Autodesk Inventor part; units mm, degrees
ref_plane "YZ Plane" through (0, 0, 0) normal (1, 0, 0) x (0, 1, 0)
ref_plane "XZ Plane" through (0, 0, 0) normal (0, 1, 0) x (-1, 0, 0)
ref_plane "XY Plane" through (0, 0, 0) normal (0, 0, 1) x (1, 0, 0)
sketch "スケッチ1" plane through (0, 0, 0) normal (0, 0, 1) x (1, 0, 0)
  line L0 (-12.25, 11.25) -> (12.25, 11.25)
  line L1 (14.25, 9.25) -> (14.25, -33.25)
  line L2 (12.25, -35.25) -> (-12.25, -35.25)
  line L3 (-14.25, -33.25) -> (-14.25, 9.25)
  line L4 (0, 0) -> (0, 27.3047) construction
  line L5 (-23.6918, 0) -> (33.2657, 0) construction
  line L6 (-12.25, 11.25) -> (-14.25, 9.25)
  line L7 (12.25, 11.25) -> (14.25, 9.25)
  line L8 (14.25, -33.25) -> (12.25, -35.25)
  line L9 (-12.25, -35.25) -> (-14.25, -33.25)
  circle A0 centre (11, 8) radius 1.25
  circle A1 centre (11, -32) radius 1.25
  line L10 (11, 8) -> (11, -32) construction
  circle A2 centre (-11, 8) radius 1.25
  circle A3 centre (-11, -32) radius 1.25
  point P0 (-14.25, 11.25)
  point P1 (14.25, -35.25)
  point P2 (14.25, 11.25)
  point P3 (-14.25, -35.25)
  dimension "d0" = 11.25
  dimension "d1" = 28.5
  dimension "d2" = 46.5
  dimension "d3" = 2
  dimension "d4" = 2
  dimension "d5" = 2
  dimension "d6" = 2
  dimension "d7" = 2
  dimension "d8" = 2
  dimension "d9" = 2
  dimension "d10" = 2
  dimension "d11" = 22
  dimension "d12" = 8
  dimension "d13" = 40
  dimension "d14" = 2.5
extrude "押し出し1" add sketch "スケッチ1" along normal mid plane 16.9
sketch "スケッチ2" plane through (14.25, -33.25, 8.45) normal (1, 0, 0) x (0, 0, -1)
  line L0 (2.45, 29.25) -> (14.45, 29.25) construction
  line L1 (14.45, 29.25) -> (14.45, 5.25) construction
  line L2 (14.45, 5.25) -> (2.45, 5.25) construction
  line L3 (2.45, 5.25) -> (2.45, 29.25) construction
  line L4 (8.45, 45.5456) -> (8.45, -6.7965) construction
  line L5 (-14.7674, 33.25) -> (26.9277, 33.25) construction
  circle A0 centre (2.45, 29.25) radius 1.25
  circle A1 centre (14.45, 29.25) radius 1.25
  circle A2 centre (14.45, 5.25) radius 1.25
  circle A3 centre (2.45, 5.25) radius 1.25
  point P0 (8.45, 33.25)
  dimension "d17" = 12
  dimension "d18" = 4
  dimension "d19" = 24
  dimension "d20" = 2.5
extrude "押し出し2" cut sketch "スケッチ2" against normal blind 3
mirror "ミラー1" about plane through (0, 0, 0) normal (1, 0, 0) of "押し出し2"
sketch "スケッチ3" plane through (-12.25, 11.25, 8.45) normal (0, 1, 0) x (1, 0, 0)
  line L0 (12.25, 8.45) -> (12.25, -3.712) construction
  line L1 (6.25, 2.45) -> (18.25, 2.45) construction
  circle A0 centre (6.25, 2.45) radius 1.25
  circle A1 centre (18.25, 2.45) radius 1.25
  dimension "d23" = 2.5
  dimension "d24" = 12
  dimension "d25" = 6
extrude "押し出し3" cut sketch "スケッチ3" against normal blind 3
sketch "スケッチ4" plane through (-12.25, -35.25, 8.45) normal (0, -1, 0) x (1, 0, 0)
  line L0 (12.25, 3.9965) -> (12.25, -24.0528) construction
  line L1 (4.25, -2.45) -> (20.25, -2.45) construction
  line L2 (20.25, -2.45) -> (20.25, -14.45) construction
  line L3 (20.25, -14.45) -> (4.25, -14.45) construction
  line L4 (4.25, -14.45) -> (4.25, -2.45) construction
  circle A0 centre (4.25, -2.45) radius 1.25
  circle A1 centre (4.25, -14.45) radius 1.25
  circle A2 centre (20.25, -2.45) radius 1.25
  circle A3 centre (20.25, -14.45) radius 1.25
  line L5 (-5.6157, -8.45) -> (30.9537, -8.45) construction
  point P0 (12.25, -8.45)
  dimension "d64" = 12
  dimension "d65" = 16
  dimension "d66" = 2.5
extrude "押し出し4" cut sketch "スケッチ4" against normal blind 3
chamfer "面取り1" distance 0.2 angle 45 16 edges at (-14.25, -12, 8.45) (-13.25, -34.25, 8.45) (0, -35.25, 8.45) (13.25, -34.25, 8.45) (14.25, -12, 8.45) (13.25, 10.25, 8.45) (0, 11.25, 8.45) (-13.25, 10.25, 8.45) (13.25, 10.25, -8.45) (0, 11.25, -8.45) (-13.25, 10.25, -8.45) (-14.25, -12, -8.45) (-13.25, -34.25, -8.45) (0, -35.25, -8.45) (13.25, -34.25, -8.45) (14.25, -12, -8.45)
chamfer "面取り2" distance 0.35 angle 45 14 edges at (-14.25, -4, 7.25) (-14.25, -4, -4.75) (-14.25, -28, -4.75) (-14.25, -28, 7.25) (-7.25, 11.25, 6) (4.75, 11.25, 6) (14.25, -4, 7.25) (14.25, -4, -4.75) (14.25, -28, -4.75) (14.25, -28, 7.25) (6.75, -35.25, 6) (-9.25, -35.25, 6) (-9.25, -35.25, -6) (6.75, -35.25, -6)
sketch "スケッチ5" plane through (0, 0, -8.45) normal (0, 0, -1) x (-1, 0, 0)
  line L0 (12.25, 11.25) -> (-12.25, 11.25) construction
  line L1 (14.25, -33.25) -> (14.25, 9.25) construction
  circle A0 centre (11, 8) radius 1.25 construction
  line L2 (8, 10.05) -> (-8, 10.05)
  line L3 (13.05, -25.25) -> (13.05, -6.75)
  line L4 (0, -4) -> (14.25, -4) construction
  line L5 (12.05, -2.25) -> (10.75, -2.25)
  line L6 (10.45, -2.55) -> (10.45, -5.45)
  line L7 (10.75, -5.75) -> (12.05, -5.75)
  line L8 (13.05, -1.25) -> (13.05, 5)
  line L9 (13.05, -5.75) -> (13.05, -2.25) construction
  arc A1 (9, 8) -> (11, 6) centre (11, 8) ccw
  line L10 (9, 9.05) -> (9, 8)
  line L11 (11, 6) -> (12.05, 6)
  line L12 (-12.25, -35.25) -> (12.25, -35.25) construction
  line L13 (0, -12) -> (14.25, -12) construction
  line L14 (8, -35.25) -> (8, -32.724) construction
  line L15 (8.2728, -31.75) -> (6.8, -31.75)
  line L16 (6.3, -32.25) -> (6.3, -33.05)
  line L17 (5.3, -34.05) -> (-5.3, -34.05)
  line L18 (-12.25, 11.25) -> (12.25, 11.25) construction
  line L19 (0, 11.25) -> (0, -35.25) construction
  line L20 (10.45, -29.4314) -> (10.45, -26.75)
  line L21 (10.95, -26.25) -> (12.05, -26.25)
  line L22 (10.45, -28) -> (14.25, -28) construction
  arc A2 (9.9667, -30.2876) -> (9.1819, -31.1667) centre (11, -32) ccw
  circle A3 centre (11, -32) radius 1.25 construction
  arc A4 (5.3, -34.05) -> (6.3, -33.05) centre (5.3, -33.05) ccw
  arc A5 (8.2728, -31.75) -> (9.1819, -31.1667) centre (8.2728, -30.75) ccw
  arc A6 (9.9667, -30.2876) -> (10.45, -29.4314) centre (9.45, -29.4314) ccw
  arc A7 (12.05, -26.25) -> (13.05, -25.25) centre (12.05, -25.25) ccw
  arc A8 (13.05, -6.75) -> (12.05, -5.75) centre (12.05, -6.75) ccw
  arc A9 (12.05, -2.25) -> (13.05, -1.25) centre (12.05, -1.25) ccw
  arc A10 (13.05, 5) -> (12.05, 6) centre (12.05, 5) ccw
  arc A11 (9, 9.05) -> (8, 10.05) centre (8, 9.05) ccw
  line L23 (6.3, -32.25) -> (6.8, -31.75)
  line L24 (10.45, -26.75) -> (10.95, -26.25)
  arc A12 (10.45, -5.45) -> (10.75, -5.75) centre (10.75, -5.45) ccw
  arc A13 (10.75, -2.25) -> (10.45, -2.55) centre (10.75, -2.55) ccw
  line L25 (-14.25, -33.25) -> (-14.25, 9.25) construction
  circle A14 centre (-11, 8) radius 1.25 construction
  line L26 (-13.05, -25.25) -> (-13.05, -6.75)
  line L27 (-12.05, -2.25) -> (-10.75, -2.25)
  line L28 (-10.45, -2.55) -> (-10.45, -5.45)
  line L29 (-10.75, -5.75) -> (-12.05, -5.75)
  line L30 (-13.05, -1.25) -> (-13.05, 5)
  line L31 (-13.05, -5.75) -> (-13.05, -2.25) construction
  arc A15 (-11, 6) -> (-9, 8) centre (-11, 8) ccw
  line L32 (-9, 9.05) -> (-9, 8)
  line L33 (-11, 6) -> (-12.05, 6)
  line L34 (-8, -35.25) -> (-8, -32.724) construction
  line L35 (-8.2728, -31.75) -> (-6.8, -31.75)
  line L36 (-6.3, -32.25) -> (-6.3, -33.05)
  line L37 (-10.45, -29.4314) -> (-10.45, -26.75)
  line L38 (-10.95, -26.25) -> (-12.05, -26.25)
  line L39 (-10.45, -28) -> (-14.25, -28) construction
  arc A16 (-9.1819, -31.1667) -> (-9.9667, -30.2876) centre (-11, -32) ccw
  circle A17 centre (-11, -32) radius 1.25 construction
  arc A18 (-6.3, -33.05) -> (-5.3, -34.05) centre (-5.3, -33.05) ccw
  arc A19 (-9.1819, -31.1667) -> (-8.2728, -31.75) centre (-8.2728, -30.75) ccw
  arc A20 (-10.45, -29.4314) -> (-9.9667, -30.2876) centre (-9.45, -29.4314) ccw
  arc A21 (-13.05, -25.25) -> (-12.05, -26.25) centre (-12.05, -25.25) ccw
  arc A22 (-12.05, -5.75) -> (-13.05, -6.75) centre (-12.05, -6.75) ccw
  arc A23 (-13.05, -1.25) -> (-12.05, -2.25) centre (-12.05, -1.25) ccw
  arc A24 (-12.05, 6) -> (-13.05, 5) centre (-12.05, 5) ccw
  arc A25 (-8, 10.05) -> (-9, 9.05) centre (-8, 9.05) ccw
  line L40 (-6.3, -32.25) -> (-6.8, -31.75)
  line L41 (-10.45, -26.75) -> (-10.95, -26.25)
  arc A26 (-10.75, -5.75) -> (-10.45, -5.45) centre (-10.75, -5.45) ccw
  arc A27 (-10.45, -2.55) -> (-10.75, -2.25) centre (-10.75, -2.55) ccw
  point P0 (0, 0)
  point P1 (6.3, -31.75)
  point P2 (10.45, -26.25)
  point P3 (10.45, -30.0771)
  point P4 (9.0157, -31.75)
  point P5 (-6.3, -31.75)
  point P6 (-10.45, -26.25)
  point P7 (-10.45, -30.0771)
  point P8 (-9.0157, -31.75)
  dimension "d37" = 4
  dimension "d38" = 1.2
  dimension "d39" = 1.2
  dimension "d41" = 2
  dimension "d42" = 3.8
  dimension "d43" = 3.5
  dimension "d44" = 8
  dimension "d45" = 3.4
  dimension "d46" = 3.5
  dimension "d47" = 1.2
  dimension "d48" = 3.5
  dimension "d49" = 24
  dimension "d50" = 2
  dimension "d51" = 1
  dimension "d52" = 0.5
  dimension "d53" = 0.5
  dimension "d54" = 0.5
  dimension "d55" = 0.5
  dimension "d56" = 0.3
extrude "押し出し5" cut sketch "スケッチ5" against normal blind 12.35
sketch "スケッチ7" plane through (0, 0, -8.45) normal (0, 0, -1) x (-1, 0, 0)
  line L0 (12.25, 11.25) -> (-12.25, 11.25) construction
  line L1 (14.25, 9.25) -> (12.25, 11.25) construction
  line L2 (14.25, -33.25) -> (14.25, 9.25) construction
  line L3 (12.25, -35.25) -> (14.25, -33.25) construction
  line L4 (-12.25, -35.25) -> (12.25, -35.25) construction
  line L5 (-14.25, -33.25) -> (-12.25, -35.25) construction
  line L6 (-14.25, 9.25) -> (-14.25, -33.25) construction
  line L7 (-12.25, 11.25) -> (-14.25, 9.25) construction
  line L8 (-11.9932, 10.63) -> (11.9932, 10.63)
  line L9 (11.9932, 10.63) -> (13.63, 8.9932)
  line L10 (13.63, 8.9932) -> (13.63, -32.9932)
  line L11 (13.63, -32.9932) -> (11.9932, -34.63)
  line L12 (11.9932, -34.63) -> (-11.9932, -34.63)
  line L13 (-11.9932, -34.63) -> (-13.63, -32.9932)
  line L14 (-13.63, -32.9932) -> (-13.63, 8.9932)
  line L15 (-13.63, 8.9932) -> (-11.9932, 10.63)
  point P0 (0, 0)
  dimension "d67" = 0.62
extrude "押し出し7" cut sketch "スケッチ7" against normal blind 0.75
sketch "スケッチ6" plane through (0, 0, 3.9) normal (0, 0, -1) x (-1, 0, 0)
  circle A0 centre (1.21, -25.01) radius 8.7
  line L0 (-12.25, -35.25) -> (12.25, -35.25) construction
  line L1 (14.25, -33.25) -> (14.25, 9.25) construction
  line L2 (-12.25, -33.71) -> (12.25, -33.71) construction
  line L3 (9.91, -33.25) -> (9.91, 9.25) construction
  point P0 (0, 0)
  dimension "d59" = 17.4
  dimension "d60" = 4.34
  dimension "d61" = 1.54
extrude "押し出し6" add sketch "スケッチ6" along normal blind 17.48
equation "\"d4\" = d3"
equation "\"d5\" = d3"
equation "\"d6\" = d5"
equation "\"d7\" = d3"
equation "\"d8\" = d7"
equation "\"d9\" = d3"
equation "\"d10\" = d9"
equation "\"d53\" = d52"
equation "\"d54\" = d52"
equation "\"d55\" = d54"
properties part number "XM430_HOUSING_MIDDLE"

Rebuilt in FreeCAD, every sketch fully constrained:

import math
import FreeCAD as App
import Part
import Sketcher
from FreeCAD import Vector
Q = App.Units.Quantity


def edges_at(feature, points):
    """Names of the edges that pass closest to the given points."""
    edges = feature.Shape.Edges
    near = lambda p: min(range(len(edges)), key=lambda i: edges[i].distToShape(Part.Vertex(*p))[0])
    return sorted({f"Edge{near(p) + 1}" for p in points})

doc = App.newDocument("Part")
params = doc.addObject("Spreadsheet::Sheet", "Params")
for row, (alias, value) in enumerate([
    ("sketch1_diameter", "2.5 mm"),
    ("sketch1_height", "42.5 mm"),
    ("pad1_length", "16.9 mm"),
    ("sketch2_diameter", "2.5 mm"),
    ("pocket1_length", "3 mm"),
    ("sketch3_diameter", "2.5 mm"),
    ("pocket2_length", "3 mm"),
    ("sketch4_diameter", "2.5 mm"),
    ("pocket3_length", "3 mm"),
    ("chamfer_size", "0.2 mm"),
    ("chamfer2_size", "0.35 mm"),
    ("sketch5_radius", "1 mm"),
    ("sketch5_radius2", "2 mm"),
    ("sketch5_radius3", "0.3 mm"),
    ("sketch5_width", "1.3 mm"),
    ("sketch5_width2", "1.1 mm"),
    ("pocket4_length", "12.35 mm"),
    ("pocket5_length", "0.75 mm"),
    ("sketch7_diameter", "17.4 mm"),
    ("pad2_length", "17.48 mm"),
], start=1):
    params.set(f"A{row}", alias)
    params.set(f"B{row}", "=" + value)
    params.setAlias(f"B{row}", alias)

body = doc.addObject("PartDesign::Body", "Body")

# Sketch on XY plane
sketch1 = body.newObject("Sketcher::SketchObject", "Sketch")
sketch1.AttachmentSupport = (doc.getObject("XY_Plane"), [""])
sketch1.MapMode = "FlatFace"
sketch1.addGeometry(Part.LineSegment(Vector(12.2, 11.2, 0), Vector(-12.2, 11.2, 0)), False)
sketch1.addGeometry(Part.LineSegment(Vector(-12.2, 11.2, 0), Vector(-14.2, 9.2, 0)), False)
sketch1.addGeometry(Part.LineSegment(Vector(-14.2, 9.2, 0), Vector(-14.2, -33.2, 0)), False)
sketch1.addGeometry(Part.LineSegment(Vector(-14.2, -33.2, 0), Vector(-12.2, -35.2, 0)), False)
sketch1.addGeometry(Part.LineSegment(Vector(-12.2, -35.2, 0), Vector(12.2, -35.2, 0)), False)
sketch1.addGeometry(Part.LineSegment(Vector(12.2, -35.2, 0), Vector(14.2, -33.2, 0)), False)
sketch1.addGeometry(Part.LineSegment(Vector(14.2, -33.2, 0), Vector(14.2, 9.2, 0)), False)
sketch1.addGeometry(Part.LineSegment(Vector(14.2, 9.2, 0), Vector(12.2, 11.2, 0)), False)
sketch1.addGeometry(Part.Circle(Vector(-11, -32, 0), Vector(0, 0, 1), 1.2), False)
sketch1.addGeometry(Part.Circle(Vector(11, -32, 0), Vector(0, 0, 1), 1.2), False)
sketch1.addGeometry(Part.Circle(Vector(-11, 8, 0), Vector(0, 0, 1), 1.2), False)
sketch1.addGeometry(Part.Circle(Vector(11, 8, 0), Vector(0, 0, 1), 1.2), False)
sketch1.addConstraint(Sketcher.Constraint("Coincident", 0, 2, 1, 1))
sketch1.addConstraint(Sketcher.Constraint("Coincident", 1, 2, 2, 1))
sketch1.addConstraint(Sketcher.Constraint("Coincident", 2, 2, 3, 1))
sketch1.addConstraint(Sketcher.Constraint("Coincident", 3, 2, 4, 1))
sketch1.addConstraint(Sketcher.Constraint("Coincident", 4, 2, 5, 1))
sketch1.addConstraint(Sketcher.Constraint("Coincident", 5, 2, 6, 1))
sketch1.addConstraint(Sketcher.Constraint("Coincident", 6, 2, 7, 1))
sketch1.addConstraint(Sketcher.Constraint("Coincident", 7, 2, 0, 1))
sketch1.addConstraint(Sketcher.Constraint("Horizontal", 0))
sketch1.addConstraint(Sketcher.Constraint("Vertical", 2))
sketch1.addConstraint(Sketcher.Constraint("Horizontal", 4))
sketch1.addConstraint(Sketcher.Constraint("Vertical", 6))
sketch1.addConstraint(Sketcher.Constraint("Equal", 8, 9))
sketch1.addConstraint(Sketcher.Constraint("Equal", 9, 10))
sketch1.addConstraint(Sketcher.Constraint("Equal", 10, 11))
sketch1.addConstraint(Sketcher.Constraint("Symmetric", 8, 3, 9, 3, -2))
sketch1.addConstraint(Sketcher.Constraint("Symmetric", 10, 3, 11, 3, -2))
sketch1.addConstraint(Sketcher.Constraint("Symmetric", 2, 2, 5, 2, -2))
sketch1.addConstraint(Sketcher.Constraint("Perpendicular", 1, 3))
sketch1.addConstraint(Sketcher.Constraint("Perpendicular", 3, 5))
sketch1.addConstraint(Sketcher.Constraint("Perpendicular", 5, 7))
sketch1.addConstraint(Sketcher.Constraint("Horizontal", 1, 2, 6, 2))
sketch1.addConstraint(Sketcher.Constraint("Vertical", 8, 3, 10, 3))
sketch1.addConstraint(Sketcher.Constraint("Vertical", 0, 2, 3, 2))
sketch1.addConstraint(Sketcher.Constraint("Vertical", 4, 2, 7, 2))
sketch1.addConstraint(Sketcher.Constraint("Diameter", 8, Q("2.5 mm")))
sketch1.addConstraint(Sketcher.Constraint("DistanceY", -1, 1, 10, 3, Q("8 mm")))
sketch1.addConstraint(Sketcher.Constraint("DistanceX", 8, 3, 9, 3, Q("22 mm")))
sketch1.addConstraint(Sketcher.Constraint("DistanceY", 8, 3, 10, 3, Q("40 mm")))
sketch1.addConstraint(Sketcher.Constraint("DistanceX", 1, 2, 0, 2, Q("2 mm")))
sketch1.addConstraint(Sketcher.Constraint("DistanceX", 2, 2, 5, 2, Q("28.5 mm")))
sketch1.addConstraint(Sketcher.Constraint("DistanceY", -1, 1, 0, 2, Q("11.25 mm")))
sketch1.addConstraint(Sketcher.Constraint("DistanceY", 2, 2, 2, 1, Q("42.5 mm")))
sketch1.setExpression("Constraints[25]", "Params.sketch1_diameter")
sketch1.setExpression("Constraints[32]", "Params.sketch1_height")
pad1 = body.newObject("PartDesign::Pad", "Pad")
pad1.Profile = sketch1
pad1.setExpression("Length", "Params.pad1_length")
pad1.Midplane = True

# Sketch on YZ plane
sketch2 = body.newObject("Sketcher::SketchObject", "Sketch001")
sketch2.AttachmentSupport = (doc.getObject("YZ_Plane"), [""])
sketch2.MapMode = "FlatFace"
sketch2.AttachmentOffset = App.Placement(Vector(0, 0, 14.25), App.Rotation())
sketch2.addGeometry(Part.Circle(Vector(-4, 6, 0), Vector(0, 0, 1), 1.2), False)
sketch2.addGeometry(Part.Circle(Vector(-4, -6, 0), Vector(0, 0, 1), 1.2), False)
sketch2.addGeometry(Part.Circle(Vector(-28, -6, 0), Vector(0, 0, 1), 1.2), False)
sketch2.addGeometry(Part.Circle(Vector(-28, 6, 0), Vector(0, 0, 1), 1.2), False)
sketch2.addConstraint(Sketcher.Constraint("Equal", 0, 1))
sketch2.addConstraint(Sketcher.Constraint("Equal", 1, 2))
sketch2.addConstraint(Sketcher.Constraint("Equal", 2, 3))
sketch2.addConstraint(Sketcher.Constraint("Symmetric", 0, 3, 1, 3, -1))
sketch2.addConstraint(Sketcher.Constraint("Symmetric", 2, 3, 3, 3, -1))
sketch2.addConstraint(Sketcher.Constraint("Horizontal", 1, 3, 2, 3))
sketch2.addConstraint(Sketcher.Constraint("Diameter", 0, Q("2.5 mm")))
sketch2.addConstraint(Sketcher.Constraint("DistanceX", 0, 3, -1, 1, Q("4 mm")))
sketch2.addConstraint(Sketcher.Constraint("DistanceY", 1, 3, 0, 3, Q("12 mm")))
sketch2.addConstraint(Sketcher.Constraint("DistanceX", 2, 3, 1, 3, Q("24 mm")))
sketch2.setExpression("Constraints[6]", "Params.sketch2_diameter")
pocket1 = body.newObject("PartDesign::Pocket", "Pocket")
pocket1.Profile = sketch2
pocket1.setExpression("Length", "Params.pocket1_length")
doc.recompute()

mirrored = body.newObject("PartDesign::Mirrored", "Mirrored")
mirrored.Originals = [pocket1]
mirrored.MirrorPlane = (doc.getObject("YZ_Plane"), [""])
body.Tip = mirrored

# Sketch on XZ plane
sketch3 = body.newObject("Sketcher::SketchObject", "Sketch002")
sketch3.AttachmentSupport = (doc.getObject("XZ_Plane"), [""])
sketch3.MapMode = "FlatFace"
sketch3.AttachmentOffset = App.Placement(Vector(0, 0, -11.25), App.Rotation())
sketch3.addGeometry(Part.Circle(Vector(-6, 6, 0), Vector(0, 0, 1), 1.2), False)
sketch3.addGeometry(Part.Circle(Vector(6, 6, 0), Vector(0, 0, 1), 1.2), False)
sketch3.addConstraint(Sketcher.Constraint("Equal", 0, 1))
sketch3.addConstraint(Sketcher.Constraint("Symmetric", 0, 3, 1, 3, -2))
sketch3.addConstraint(Sketcher.Constraint("Diameter", 0, Q("2.5 mm")))
sketch3.addConstraint(Sketcher.Constraint("DistanceX", 0, 3, -1, 1, Q("6 mm")))
sketch3.addConstraint(Sketcher.Constraint("DistanceY", -1, 1, 0, 3, Q("6 mm")))
sketch3.setExpression("Constraints[2]", "Params.sketch3_diameter")
pocket2 = body.newObject("PartDesign::Pocket", "Pocket001")
pocket2.Profile = sketch3
pocket2.setExpression("Length", "Params.pocket2_length")
pocket2.Reversed = True

# Sketch on XZ plane
sketch4 = body.newObject("Sketcher::SketchObject", "Sketch003")
sketch4.AttachmentSupport = (doc.getObject("XZ_Plane"), [""])
sketch4.MapMode = "FlatFace"
sketch4.AttachmentOffset = App.Placement(Vector(0, 0, 35.25), App.Rotation())
sketch4.addGeometry(Part.Circle(Vector(-8, 6, 0), Vector(0, 0, 1), 1.2), False)
sketch4.addGeometry(Part.Circle(Vector(-8, -6, 0), Vector(0, 0, 1), 1.2), False)
sketch4.addGeometry(Part.Circle(Vector(8, 6, 0), Vector(0, 0, 1), 1.2), False)
sketch4.addGeometry(Part.Circle(Vector(8, -6, 0), Vector(0, 0, 1), 1.2), False)
sketch4.addConstraint(Sketcher.Constraint("Equal", 0, 1))
sketch4.addConstraint(Sketcher.Constraint("Equal", 1, 2))
sketch4.addConstraint(Sketcher.Constraint("Equal", 2, 3))
sketch4.addConstraint(Sketcher.Constraint("Symmetric", 1, 3, 2, 3, -1, 1))
sketch4.addConstraint(Sketcher.Constraint("Symmetric", 0, 3, 3, 3, -1, 1))
sketch4.addConstraint(Sketcher.Constraint("Symmetric", 0, 3, 2, 3, -2))
sketch4.addConstraint(Sketcher.Constraint("Diameter", 0, Q("2.5 mm")))
sketch4.addConstraint(Sketcher.Constraint("DistanceY", 1, 3, 0, 3, Q("12 mm")))
sketch4.addConstraint(Sketcher.Constraint("DistanceX", 0, 3, 2, 3, Q("16 mm")))
sketch4.setExpression("Constraints[6]", "Params.sketch4_diameter")
pocket3 = body.newObject("PartDesign::Pocket", "Pocket002")
pocket3.Profile = sketch4
pocket3.setExpression("Length", "Params.pocket3_length")
doc.recompute()

chamfer = body.newObject("PartDesign::Chamfer", "Chamfer")
chamfer.Base = (pocket3, edges_at(pocket3, [
    (-14.25, -12, 8.45),
    (-13.25, -34.25, 8.45),
    (0, -35.25, 8.45),
    (13.25, -34.25, 8.45),
    (14.25, -12, 8.45),
    (13.25, 10.25, 8.45),
    (0, 11.25, 8.45),
    (-13.25, 10.25, 8.45),
    (13.25, 10.25, -8.45),
    (0, 11.25, -8.45),
    (-13.25, 10.25, -8.45),
    (-14.25, -12, -8.45),
    (-13.25, -34.25, -8.45),
    (0, -35.25, -8.45),
    (13.25, -34.25, -8.45),
    (14.25, -12, -8.45),
]))
chamfer.setExpression("Size", "Params.chamfer_size")
doc.recompute()

chamfer2 = body.newObject("PartDesign::Chamfer", "Chamfer001")
chamfer2.Base = (chamfer, edges_at(chamfer, [
    (-14.25, -4, 7.25),
    (-14.25, -4, -4.75),
    (-14.25, -28, -4.75),
    (-14.25, -28, 7.25),
    (-7.25, 11.25, 6),
    (4.75, 11.25, 6),
    (14.25, -4, 7.25),
    (14.25, -4, -4.75),
    (14.25, -28, -4.75),
    (14.25, -28, 7.25),
    (6.75, -35.25, 6),
    (-9.25, -35.25, 6),
    (-9.25, -35.25, -6),
    (6.75, -35.25, -6),
]))
chamfer2.setExpression("Size", "Params.chamfer2_size")

# Sketch on XY plane
sketch5 = body.newObject("Sketcher::SketchObject", "Sketch004")
sketch5.AttachmentSupport = (doc.getObject("XY_Plane"), [""])
sketch5.MapMode = "FlatFace"
sketch5.AttachmentOffset = App.Placement(Vector(0, 0, -8.45), App.Rotation())
sketch5.addGeometry(Part.ArcOfCircle(Part.Circle(Vector(-8, 9.05, 0), Vector(0, 0, 1), 1), math.radians(90), math.radians(180)), False)
sketch5.addGeometry(Part.LineSegment(Vector(-8, 10.05, 0), Vector(8, 10.05, 0)), False)
sketch5.addGeometry(Part.ArcOfCircle(Part.Circle(Vector(8, 9.05, 0), Vector(0, 0, 1), 1), math.radians(0), math.radians(90)), False)
sketch5.addGeometry(Part.LineSegment(Vector(9, 9.05, 0), Vector(9, 8, 0)), False)
sketch5.addGeometry(Part.ArcOfCircle(Part.Circle(Vector(11, 8, 0), Vector(0, 0, 1), 2), math.radians(180), math.radians(270)), False)
sketch5.addGeometry(Part.LineSegment(Vector(11, 6, 0), Vector(12.05, 6, 0)), False)
sketch5.addGeometry(Part.ArcOfCircle(Part.Circle(Vector(12.05, 5, 0), Vector(0, 0, 1), 1), math.radians(0), math.radians(90)), False)
sketch5.addGeometry(Part.LineSegment(Vector(13.05, 5, 0), Vector(13.05, -1.25, 0)), False)
sketch5.addGeometry(Part.ArcOfCircle(Part.Circle(Vector(12.05, -1.25, 0), Vector(0, 0, 1), 1), math.radians(-90), math.radians(0)), False)
sketch5.addGeometry(Part.LineSegment(Vector(12.05, -2.25, 0), Vector(10.75, -2.25, 0)), False)
sketch5.addGeometry(Part.ArcOfCircle(Part.Circle(Vector(10.75, -2.55, 0), Vector(0, 0, 1), 0.3), math.radians(90), math.radians(180)), False)
sketch5.addGeometry(Part.LineSegment(Vector(10.45, -2.55, 0), Vector(10.45, -5.45, 0)), False)
sketch5.addGeometry(Part.ArcOfCircle(Part.Circle(Vector(10.75, -5.45, 0), Vector(0, 0, 1), 0.3), math.radians(180), math.radians(270)), False)
sketch5.addGeometry(Part.LineSegment(Vector(10.75, -5.75, 0), Vector(12.05, -5.75, 0)), False)
sketch5.addGeometry(Part.ArcOfCircle(Part.Circle(Vector(12.05, -6.75, 0), Vector(0, 0, 1), 1), math.radians(0), math.radians(90)), False)
sketch5.addGeometry(Part.LineSegment(Vector(13.05, -6.75, 0), Vector(13.05, -25.25, 0)), False)
sketch5.addGeometry(Part.ArcOfCircle(Part.Circle(Vector(12.05, -25.25, 0), Vector(0, 0, 1), 1), math.radians(-90), math.radians(0)), False)
sketch5.addGeometry(Part.LineSegment(Vector(12.05, -26.25, 0), Vector(10.95, -26.25, 0)), False)
sketch5.addGeometry(Part.LineSegment(Vector(10.95, -26.25, 0), Vector(10.45, -26.75, 0)), False)
sketch5.addGeometry(Part.LineSegment(Vector(10.45, -26.75, 0), Vector(10.45, -29.43, 0)), False)
sketch5.addGeometry(Part.ArcOfCircle(Part.Circle(Vector(9.45, -29.43, 0), Vector(0, 0, 1), 1), math.radians(-59), math.radians(0)), False)
sketch5.addGeometry(Part.ArcOfCircle(Part.Circle(Vector(11, -32, 0), Vector(0, 0, 1), 2), math.radians(121), math.radians(155)), False)
sketch5.addGeometry(Part.ArcOfCircle(Part.Circle(Vector(8.27, -30.75, 0), Vector(0, 0, 1), 1), math.radians(-90), math.radians(-25)), False)
sketch5.addGeometry(Part.LineSegment(Vector(8.27, -31.75, 0), Vector(6.8, -31.75, 0)), False)
sketch5.addGeometry(Part.LineSegment(Vector(6.8, -31.75, 0), Vector(6.3, -32.25, 0)), False)
sketch5.addGeometry(Part.LineSegment(Vector(6.3, -32.25, 0), Vector(6.3, -33.05, 0)), False)
sketch5.addGeometry(Part.ArcOfCircle(Part.Circle(Vector(5.3, -33.05, 0), Vector(0, 0, 1), 1), math.radians(-90), math.radians(0)), False)
sketch5.addGeometry(Part.LineSegment(Vector(5.3, -34.05, 0), Vector(-5.3, -34.05, 0)), False)
sketch5.addGeometry(Part.ArcOfCircle(Part.Circle(Vector(-5.3, -33.05, 0), Vector(0, 0, 1), 1), math.radians(180), math.radians(270)), False)
sketch5.addGeometry(Part.LineSegment(Vector(-6.3, -33.05, 0), Vector(-6.3, -32.25, 0)), False)
sketch5.addGeometry(Part.LineSegment(Vector(-6.3, -32.25, 0), Vector(-6.8, -31.75, 0)), False)
sketch5.addGeometry(Part.LineSegment(Vector(-6.8, -31.75, 0), Vector(-8.27, -31.75, 0)), False)
sketch5.addGeometry(Part.ArcOfCircle(Part.Circle(Vector(-8.27, -30.75, 0), Vector(0, 0, 1), 1), math.radians(-155), math.radians(-90)), False)
sketch5.addGeometry(Part.ArcOfCircle(Part.Circle(Vector(-11, -32, 0), Vector(0, 0, 1), 2), math.radians(25), math.radians(59)), False)
sketch5.addGeometry(Part.ArcOfCircle(Part.Circle(Vector(-9.45, -29.43, 0), Vector(0, 0, 1), 1), math.radians(180), math.radians(239)), False)
sketch5.addGeometry(Part.LineSegment(Vector(-10.45, -29.43, 0), Vector(-10.45, -26.75, 0)), False)
sketch5.addGeometry(Part.LineSegment(Vector(-10.45, -26.75, 0), Vector(-10.95, -26.25, 0)), False)
sketch5.addGeometry(Part.LineSegment(Vector(-10.95, -26.25, 0), Vector(-12.05, -26.25, 0)), False)
sketch5.addGeometry(Part.ArcOfCircle(Part.Circle(Vector(-12.05, -25.25, 0), Vector(0, 0, 1), 1), math.radians(180), math.radians(270)), False)
sketch5.addGeometry(Part.LineSegment(Vector(-13.05, -25.25, 0), Vector(-13.05, -6.75, 0)), False)
sketch5.addGeometry(Part.ArcOfCircle(Part.Circle(Vector(-12.05, -6.75, 0), Vector(0, 0, 1), 1), math.radians(90), math.radians(180)), False)
sketch5.addGeometry(Part.LineSegment(Vector(-12.05, -5.75, 0), Vector(-10.75, -5.75, 0)), False)
sketch5.addGeometry(Part.ArcOfCircle(Part.Circle(Vector(-10.75, -5.45, 0), Vector(0, 0, 1), 0.3), math.radians(-90), math.radians(0)), False)
sketch5.addGeometry(Part.LineSegment(Vector(-10.45, -5.45, 0), Vector(-10.45, -2.55, 0)), False)
sketch5.addGeometry(Part.ArcOfCircle(Part.Circle(Vector(-10.75, -2.55, 0), Vector(0, 0, 1), 0.3), math.radians(0), math.radians(90)), False)
sketch5.addGeometry(Part.LineSegment(Vector(-10.75, -2.25, 0), Vector(-12.05, -2.25, 0)), False)
sketch5.addGeometry(Part.ArcOfCircle(Part.Circle(Vector(-12.05, -1.25, 0), Vector(0, 0, 1), 1), math.radians(180), math.radians(270)), False)
sketch5.addGeometry(Part.LineSegment(Vector(-13.05, -1.25, 0), Vector(-13.05, 5, 0)), False)
sketch5.addGeometry(Part.ArcOfCircle(Part.Circle(Vector(-12.05, 5, 0), Vector(0, 0, 1), 1), math.radians(90), math.radians(180)), False)
sketch5.addGeometry(Part.LineSegment(Vector(-12.05, 6, 0), Vector(-11, 6, 0)), False)
sketch5.addGeometry(Part.ArcOfCircle(Part.Circle(Vector(-11, 8, 0), Vector(0, 0, 1), 2), math.radians(-90), math.radians(0)), False)
sketch5.addGeometry(Part.LineSegment(Vector(-9, 8, 0), Vector(-9, 9.05, 0)), False)
sketch5.addConstraint(Sketcher.Constraint("Tangent", 0, 1, 1, 1))
sketch5.addConstraint(Sketcher.Constraint("Tangent", 1, 2, 2, 2))
sketch5.addConstraint(Sketcher.Constraint("Tangent", 2, 1, 3, 1))
sketch5.addConstraint(Sketcher.Constraint("Tangent", 3, 2, 4, 1))
sketch5.addConstraint(Sketcher.Constraint("Tangent", 4, 2, 5, 1))
sketch5.addConstraint(Sketcher.Constraint("Tangent", 5, 2, 6, 2))
sketch5.addConstraint(Sketcher.Constraint("Tangent", 6, 1, 7, 1))
sketch5.addConstraint(Sketcher.Constraint("Tangent", 7, 2, 8, 2))
sketch5.addConstraint(Sketcher.Constraint("Tangent", 8, 1, 9, 1))
sketch5.addConstraint(Sketcher.Constraint("Tangent", 9, 2, 10, 1))
sketch5.addConstraint(Sketcher.Constraint("Tangent", 10, 2, 11, 1))
sketch5.addConstraint(Sketcher.Constraint("Tangent", 11, 2, 12, 1))
sketch5.addConstraint(Sketcher.Constraint("Tangent", 12, 2, 13, 1))
sketch5.addConstraint(Sketcher.Constraint("Tangent", 13, 2, 14, 2))
sketch5.addConstraint(Sketcher.Constraint("Tangent", 14, 1, 15, 1))
sketch5.addConstraint(Sketcher.Constraint("Tangent", 15, 2, 16, 2))
sketch5.addConstraint(Sketcher.Constraint("Tangent", 16, 1, 17, 1))
sketch5.addConstraint(Sketcher.Constraint("Coincident", 17, 2, 18, 1))
sketch5.addConstraint(Sketcher.Constraint("Coincident", 18, 2, 19, 1))
sketch5.addConstraint(Sketcher.Constraint("Tangent", 19, 2, 20, 2))
sketch5.addConstraint(Sketcher.Constraint("Tangent", 20, 1, 21, 1))
sketch5.addConstraint(Sketcher.Constraint("Tangent", 21, 2, 22, 2))
sketch5.addConstraint(Sketcher.Constraint("Tangent", 22, 1, 23, 1))
sketch5.addConstraint(Sketcher.Constraint("Coincident", 23, 2, 24, 1))
sketch5.addConstraint(Sketcher.Constraint("Coincident", 24, 2, 25, 1))
sketch5.addConstraint(Sketcher.Constraint("Tangent", 25, 2, 26, 2))
sketch5.addConstraint(Sketcher.Constraint("Tangent", 26, 1, 27, 1))
sketch5.addConstraint(Sketcher.Constraint("Tangent", 27, 2, 28, 2))
sketch5.addConstraint(Sketcher.Constraint("Tangent", 28, 1, 29, 1))
sketch5.addConstraint(Sketcher.Constraint("Coincident", 29, 2, 30, 1))
sketch5.addConstraint(Sketcher.Constraint("Coincident", 30, 2, 31, 1))
sketch5.addConstraint(Sketcher.Constraint("Tangent", 31, 2, 32, 2))
sketch5.addConstraint(Sketcher.Constraint("Tangent", 32, 1, 33, 1))
sketch5.addConstraint(Sketcher.Constraint("Tangent", 33, 2, 34, 2))
sketch5.addConstraint(Sketcher.Constraint("Tangent", 34, 1, 35, 1))
sketch5.addConstraint(Sketcher.Constraint("Coincident", 35, 2, 36, 1))
sketch5.addConstraint(Sketcher.Constraint("Coincident", 36, 2, 37, 1))
sketch5.addConstraint(Sketcher.Constraint("Tangent", 37, 2, 38, 2))
sketch5.addConstraint(Sketcher.Constraint("Tangent", 38, 1, 39, 1))
sketch5.addConstraint(Sketcher.Constraint("Tangent", 39, 2, 40, 2))
sketch5.addConstraint(Sketcher.Constraint("Tangent", 40, 1, 41, 1))
sketch5.addConstraint(Sketcher.Constraint("Tangent", 41, 2, 42, 1))
sketch5.addConstraint(Sketcher.Constraint("Tangent", 42, 2, 43, 1))
sketch5.addConstraint(Sketcher.Constraint("Tangent", 43, 2, 44, 1))
sketch5.addConstraint(Sketcher.Constraint("Tangent", 44, 2, 45, 1))
sketch5.addConstraint(Sketcher.Constraint("Tangent", 45, 2, 46, 2))
sketch5.addConstraint(Sketcher.Constraint("Tangent", 46, 1, 47, 1))
sketch5.addConstraint(Sketcher.Constraint("Tangent", 47, 2, 48, 2))
sketch5.addConstraint(Sketcher.Constraint("Tangent", 48, 1, 49, 1))
sketch5.addConstraint(Sketcher.Constraint("Tangent", 49, 2, 50, 1))
sketch5.addConstraint(Sketcher.Constraint("Tangent", 50, 2, 51, 1))
sketch5.addConstraint(Sketcher.Constraint("Tangent", 51, 2, 0, 2))
sketch5.addConstraint(Sketcher.Constraint("Horizontal", 1))
sketch5.addConstraint(Sketcher.Constraint("Vertical", 3))
sketch5.addConstraint(Sketcher.Constraint("Horizontal", 5))
sketch5.addConstraint(Sketcher.Constraint("Vertical", 7))
sketch5.addConstraint(Sketcher.Constraint("Horizontal", 9))
sketch5.addConstraint(Sketcher.Constraint("Vertical", 11))
sketch5.addConstraint(Sketcher.Constraint("Horizontal", 13))
sketch5.addConstraint(Sketcher.Constraint("Vertical", 15))
sketch5.addConstraint(Sketcher.Constraint("Horizontal", 17))
sketch5.addConstraint(Sketcher.Constraint("Vertical", 19))
sketch5.addConstraint(Sketcher.Constraint("Horizontal", 23))
sketch5.addConstraint(Sketcher.Constraint("Vertical", 25))
sketch5.addConstraint(Sketcher.Constraint("Horizontal", 27))
sketch5.addConstraint(Sketcher.Constraint("Vertical", 29))
sketch5.addConstraint(Sketcher.Constraint("Horizontal", 31))
sketch5.addConstraint(Sketcher.Constraint("Vertical", 35))
sketch5.addConstraint(Sketcher.Constraint("Horizontal", 37))
sketch5.addConstraint(Sketcher.Constraint("Vertical", 39))
sketch5.addConstraint(Sketcher.Constraint("Horizontal", 41))
sketch5.addConstraint(Sketcher.Constraint("Vertical", 43))
sketch5.addConstraint(Sketcher.Constraint("Horizontal", 45))
sketch5.addConstraint(Sketcher.Constraint("Vertical", 47))
sketch5.addConstraint(Sketcher.Constraint("Horizontal", 49))
sketch5.addConstraint(Sketcher.Constraint("Vertical", 51))
sketch5.addConstraint(Sketcher.Constraint("Equal", 0, 2))
sketch5.addConstraint(Sketcher.Constraint("Equal", 2, 6))
sketch5.addConstraint(Sketcher.Constraint("Equal", 6, 8))
sketch5.addConstraint(Sketcher.Constraint("Equal", 10, 12))
sketch5.addConstraint(Sketcher.Constraint("Equal", 8, 14))
sketch5.addConstraint(Sketcher.Constraint("Equal", 14, 16))
sketch5.addConstraint(Sketcher.Constraint("Equal", 16, 20))
sketch5.addConstraint(Sketcher.Constraint("Equal", 4, 21))
sketch5.addConstraint(Sketcher.Constraint("Equal", 20, 22))
sketch5.addConstraint(Sketcher.Constraint("Equal", 22, 26))
sketch5.addConstraint(Sketcher.Constraint("Equal", 26, 28))
sketch5.addConstraint(Sketcher.Constraint("Equal", 28, 32))
sketch5.addConstraint(Sketcher.Constraint("Equal", 21, 33))
sketch5.addConstraint(Sketcher.Constraint("Equal", 32, 34))
sketch5.addConstraint(Sketcher.Constraint("Equal", 34, 38))
sketch5.addConstraint(Sketcher.Constraint("Equal", 38, 40))
sketch5.addConstraint(Sketcher.Constraint("Equal", 12, 42))
sketch5.addConstraint(Sketcher.Constraint("Equal", 42, 44))
sketch5.addConstraint(Sketcher.Constraint("Equal", 40, 46))
sketch5.addConstraint(Sketcher.Constraint("Equal", 46, 48))
sketch5.addConstraint(Sketcher.Constraint("Equal", 33, 50))
sketch5.addConstraint(Sketcher.Constraint("Symmetric", 22, 3, 32, 3, -2))
sketch5.addConstraint(Sketcher.Constraint("Symmetric", 20, 3, 34, 3, -2))
sketch5.addConstraint(Sketcher.Constraint("Symmetric", 16, 3, 38, 3, -2))
sketch5.addConstraint(Sketcher.Constraint("Symmetric", 12, 3, 42, 3, -2))
sketch5.addConstraint(Sketcher.Constraint("Symmetric", 8, 3, 46, 3, -2))
sketch5.addConstraint(Sketcher.Constraint("Symmetric", 4, 3, 50, 3, -2))
sketch5.addConstraint(Sketcher.Constraint("Symmetric", 24, 2, 29, 2, -2))
sketch5.addConstraint(Sketcher.Constraint("Parallel", 18, 24))
sketch5.addConstraint(Sketcher.Constraint("Perpendicular", 24, 30))
sketch5.addConstraint(Sketcher.Constraint("Parallel", 30, 36))
sketch5.addConstraint(Sketcher.Constraint("Horizontal", 18, 2, 35, 2))
sketch5.addConstraint(Sketcher.Constraint("Vertical", 8, 3, 14, 3))
sketch5.addConstraint(Sketcher.Constraint("Vertical", 4, 3, 21, 3))
sketch5.addConstraint(Sketcher.Constraint("Vertical", 11, 2, 18, 2))
sketch5.addConstraint(Sketcher.Constraint("Equal", 23, 31))
sketch5.addConstraint(Sketcher.Constraint("Equal", 49, 3))
sketch5.addConstraint(Sketcher.Constraint("Equal", 18, 24))
sketch5.addConstraint(Sketcher.Constraint("Radius", 0, Q("1 mm")))
sketch5.addConstraint(Sketcher.Constraint("Radius", 4, Q("2 mm")))
sketch5.addConstraint(Sketcher.Constraint("Radius", 10, Q("0.3 mm")))
sketch5.addConstraint(Sketcher.Constraint("DistanceX", 0, 3, -1, 1, Q("8 mm")))
sketch5.addConstraint(Sketcher.Constraint("DistanceY", -1, 1, 4, 3, Q("8 mm")))
sketch5.addConstraint(Sketcher.Constraint("DistanceX", 9, 2, 9, 1, Q("1.3 mm")))
sketch5.addConstraint(Sketcher.Constraint("DistanceX", 17, 2, 17, 1, Q("1.1 mm")))
sketch5.addConstraint(Sketcher.Constraint("DistanceX", 27, 2, 27, 1, Q("10.6 mm")))
sketch5.addConstraint(Sketcher.Constraint("DistanceY", 11, 2, 11, 1, Q("2.9 mm")))
sketch5.addConstraint(Sketcher.Constraint("DistanceY", 15, 2, 15, 1, Q("18.5 mm")))
sketch5.addConstraint(Sketcher.Constraint("DistanceY", 25, 2, 25, 1, Q("0.8 mm")))
sketch5.addConstraint(Sketcher.Constraint("DistanceY", 21, 3, -1, 1, Q("32 mm")))
sketch5.addConstraint(Sketcher.Constraint("DistanceX", 5, 1, 5, 2, Q("1.05 mm")))
sketch5.addConstraint(Sketcher.Constraint("DistanceY", 7, 2, 7, 1, Q("6.25 mm")))
sketch5.addConstraint(Sketcher.Constraint("DistanceY", 22, 3, -1, 1, Q("30.75 mm")))
sketch5.setExpression("Constraints[114]", "Params.sketch5_radius")
sketch5.setExpression("Constraints[115]", "Params.sketch5_radius2")
sketch5.setExpression("Constraints[116]", "Params.sketch5_radius3")
sketch5.setExpression("Constraints[119]", "Params.sketch5_width")
sketch5.setExpression("Constraints[120]", "Params.sketch5_width2")
pocket4 = body.newObject("PartDesign::Pocket", "Pocket003")
pocket4.Profile = sketch5
pocket4.setExpression("Length", "Params.pocket4_length")
pocket4.Reversed = True

# Sketch on XY plane
sketch6 = body.newObject("Sketcher::SketchObject", "Sketch005")
sketch6.AttachmentSupport = (doc.getObject("XY_Plane"), [""])
sketch6.MapMode = "FlatFace"
sketch6.AttachmentOffset = App.Placement(Vector(0, 0, -8.45), App.Rotation())
sketch6.addGeometry(Part.LineSegment(Vector(-12, 10.6, 0), Vector(12, 10.6, 0)), False)
sketch6.addGeometry(Part.LineSegment(Vector(12, 10.6, 0), Vector(13.6, 9, 0)), False)
sketch6.addGeometry(Part.LineSegment(Vector(13.6, 9, 0), Vector(13.6, -33, 0)), False)
sketch6.addGeometry(Part.LineSegment(Vector(13.6, -33, 0), Vector(12, -34.6, 0)), False)
sketch6.addGeometry(Part.LineSegment(Vector(12, -34.6, 0), Vector(-12, -34.6, 0)), False)
sketch6.addGeometry(Part.LineSegment(Vector(-12, -34.6, 0), Vector(-13.6, -33, 0)), False)
sketch6.addGeometry(Part.LineSegment(Vector(-13.6, -33, 0), Vector(-13.6, 9, 0)), False)
sketch6.addGeometry(Part.LineSegment(Vector(-13.6, 9, 0), Vector(-12, 10.6, 0)), False)
sketch6.addConstraint(Sketcher.Constraint("Coincident", 0, 2, 1, 1))
sketch6.addConstraint(Sketcher.Constraint("Coincident", 1, 2, 2, 1))
sketch6.addConstraint(Sketcher.Constraint("Coincident", 2, 2, 3, 1))
sketch6.addConstraint(Sketcher.Constraint("Coincident", 3, 2, 4, 1))
sketch6.addConstraint(Sketcher.Constraint("Coincident", 4, 2, 5, 1))
sketch6.addConstraint(Sketcher.Constraint("Coincident", 5, 2, 6, 1))
sketch6.addConstraint(Sketcher.Constraint("Coincident", 6, 2, 7, 1))
sketch6.addConstraint(Sketcher.Constraint("Coincident", 7, 2, 0, 1))
sketch6.addConstraint(Sketcher.Constraint("Horizontal", 0))
sketch6.addConstraint(Sketcher.Constraint("Vertical", 2))
sketch6.addConstraint(Sketcher.Constraint("Horizontal", 4))
sketch6.addConstraint(Sketcher.Constraint("Vertical", 6))
sketch6.addConstraint(Sketcher.Constraint("Symmetric", 2, 2, 5, 2, -2))
sketch6.addConstraint(Sketcher.Constraint("Perpendicular", 1, 3))
sketch6.addConstraint(Sketcher.Constraint("Perpendicular", 3, 5))
sketch6.addConstraint(Sketcher.Constraint("Perpendicular", 5, 7))
sketch6.addConstraint(Sketcher.Constraint("Horizontal", 1, 2, 6, 2))
sketch6.addConstraint(Sketcher.Constraint("Vertical", 0, 2, 3, 2))
sketch6.addConstraint(Sketcher.Constraint("Vertical", 4, 2, 7, 2))
sketch6.addConstraint(Sketcher.Constraint("DistanceY", -1, 1, 0, 2, Q("10.63 mm")))
sketch6.addConstraint(Sketcher.Constraint("DistanceX", -1, 1, 1, 2, Q("13.63 mm")))
sketch6.addConstraint(Sketcher.Constraint("DistanceY", 3, 2, -1, 1, Q("34.63 mm")))
sketch6.addConstraint(Sketcher.Constraint("DistanceX", 0, 1, 0, 2, Q("23.9864 mm")))
pocket5 = body.newObject("PartDesign::Pocket", "Pocket004")
pocket5.Profile = sketch6
pocket5.setExpression("Length", "Params.pocket5_length")
pocket5.Reversed = True

# Sketch on XY plane
sketch7 = body.newObject("Sketcher::SketchObject", "Sketch006")
sketch7.AttachmentSupport = (doc.getObject("XY_Plane"), [""])
sketch7.MapMode = "FlatFace"
sketch7.AttachmentOffset = App.Placement(Vector(0, 0, 3.9), App.Rotation())
sketch7.addGeometry(Part.Circle(Vector(-1, -25, 0), Vector(0, 0, 1), 9), False)
sketch7.addConstraint(Sketcher.Constraint("Diameter", 0, Q("17.4 mm")))
sketch7.addConstraint(Sketcher.Constraint("DistanceX", 0, 3, -1, 1, Q("1.21 mm")))
sketch7.addConstraint(Sketcher.Constraint("DistanceY", 0, 3, -1, 1, Q("25.01 mm")))
sketch7.setExpression("Constraints[0]", "Params.sketch7_diameter")
pad2 = body.newObject("PartDesign::Pad", "Pad001")
pad2.Profile = sketch7
pad2.setExpression("Length", "Params.pad2_length")
pad2.Reversed = True

doc.recompute()
